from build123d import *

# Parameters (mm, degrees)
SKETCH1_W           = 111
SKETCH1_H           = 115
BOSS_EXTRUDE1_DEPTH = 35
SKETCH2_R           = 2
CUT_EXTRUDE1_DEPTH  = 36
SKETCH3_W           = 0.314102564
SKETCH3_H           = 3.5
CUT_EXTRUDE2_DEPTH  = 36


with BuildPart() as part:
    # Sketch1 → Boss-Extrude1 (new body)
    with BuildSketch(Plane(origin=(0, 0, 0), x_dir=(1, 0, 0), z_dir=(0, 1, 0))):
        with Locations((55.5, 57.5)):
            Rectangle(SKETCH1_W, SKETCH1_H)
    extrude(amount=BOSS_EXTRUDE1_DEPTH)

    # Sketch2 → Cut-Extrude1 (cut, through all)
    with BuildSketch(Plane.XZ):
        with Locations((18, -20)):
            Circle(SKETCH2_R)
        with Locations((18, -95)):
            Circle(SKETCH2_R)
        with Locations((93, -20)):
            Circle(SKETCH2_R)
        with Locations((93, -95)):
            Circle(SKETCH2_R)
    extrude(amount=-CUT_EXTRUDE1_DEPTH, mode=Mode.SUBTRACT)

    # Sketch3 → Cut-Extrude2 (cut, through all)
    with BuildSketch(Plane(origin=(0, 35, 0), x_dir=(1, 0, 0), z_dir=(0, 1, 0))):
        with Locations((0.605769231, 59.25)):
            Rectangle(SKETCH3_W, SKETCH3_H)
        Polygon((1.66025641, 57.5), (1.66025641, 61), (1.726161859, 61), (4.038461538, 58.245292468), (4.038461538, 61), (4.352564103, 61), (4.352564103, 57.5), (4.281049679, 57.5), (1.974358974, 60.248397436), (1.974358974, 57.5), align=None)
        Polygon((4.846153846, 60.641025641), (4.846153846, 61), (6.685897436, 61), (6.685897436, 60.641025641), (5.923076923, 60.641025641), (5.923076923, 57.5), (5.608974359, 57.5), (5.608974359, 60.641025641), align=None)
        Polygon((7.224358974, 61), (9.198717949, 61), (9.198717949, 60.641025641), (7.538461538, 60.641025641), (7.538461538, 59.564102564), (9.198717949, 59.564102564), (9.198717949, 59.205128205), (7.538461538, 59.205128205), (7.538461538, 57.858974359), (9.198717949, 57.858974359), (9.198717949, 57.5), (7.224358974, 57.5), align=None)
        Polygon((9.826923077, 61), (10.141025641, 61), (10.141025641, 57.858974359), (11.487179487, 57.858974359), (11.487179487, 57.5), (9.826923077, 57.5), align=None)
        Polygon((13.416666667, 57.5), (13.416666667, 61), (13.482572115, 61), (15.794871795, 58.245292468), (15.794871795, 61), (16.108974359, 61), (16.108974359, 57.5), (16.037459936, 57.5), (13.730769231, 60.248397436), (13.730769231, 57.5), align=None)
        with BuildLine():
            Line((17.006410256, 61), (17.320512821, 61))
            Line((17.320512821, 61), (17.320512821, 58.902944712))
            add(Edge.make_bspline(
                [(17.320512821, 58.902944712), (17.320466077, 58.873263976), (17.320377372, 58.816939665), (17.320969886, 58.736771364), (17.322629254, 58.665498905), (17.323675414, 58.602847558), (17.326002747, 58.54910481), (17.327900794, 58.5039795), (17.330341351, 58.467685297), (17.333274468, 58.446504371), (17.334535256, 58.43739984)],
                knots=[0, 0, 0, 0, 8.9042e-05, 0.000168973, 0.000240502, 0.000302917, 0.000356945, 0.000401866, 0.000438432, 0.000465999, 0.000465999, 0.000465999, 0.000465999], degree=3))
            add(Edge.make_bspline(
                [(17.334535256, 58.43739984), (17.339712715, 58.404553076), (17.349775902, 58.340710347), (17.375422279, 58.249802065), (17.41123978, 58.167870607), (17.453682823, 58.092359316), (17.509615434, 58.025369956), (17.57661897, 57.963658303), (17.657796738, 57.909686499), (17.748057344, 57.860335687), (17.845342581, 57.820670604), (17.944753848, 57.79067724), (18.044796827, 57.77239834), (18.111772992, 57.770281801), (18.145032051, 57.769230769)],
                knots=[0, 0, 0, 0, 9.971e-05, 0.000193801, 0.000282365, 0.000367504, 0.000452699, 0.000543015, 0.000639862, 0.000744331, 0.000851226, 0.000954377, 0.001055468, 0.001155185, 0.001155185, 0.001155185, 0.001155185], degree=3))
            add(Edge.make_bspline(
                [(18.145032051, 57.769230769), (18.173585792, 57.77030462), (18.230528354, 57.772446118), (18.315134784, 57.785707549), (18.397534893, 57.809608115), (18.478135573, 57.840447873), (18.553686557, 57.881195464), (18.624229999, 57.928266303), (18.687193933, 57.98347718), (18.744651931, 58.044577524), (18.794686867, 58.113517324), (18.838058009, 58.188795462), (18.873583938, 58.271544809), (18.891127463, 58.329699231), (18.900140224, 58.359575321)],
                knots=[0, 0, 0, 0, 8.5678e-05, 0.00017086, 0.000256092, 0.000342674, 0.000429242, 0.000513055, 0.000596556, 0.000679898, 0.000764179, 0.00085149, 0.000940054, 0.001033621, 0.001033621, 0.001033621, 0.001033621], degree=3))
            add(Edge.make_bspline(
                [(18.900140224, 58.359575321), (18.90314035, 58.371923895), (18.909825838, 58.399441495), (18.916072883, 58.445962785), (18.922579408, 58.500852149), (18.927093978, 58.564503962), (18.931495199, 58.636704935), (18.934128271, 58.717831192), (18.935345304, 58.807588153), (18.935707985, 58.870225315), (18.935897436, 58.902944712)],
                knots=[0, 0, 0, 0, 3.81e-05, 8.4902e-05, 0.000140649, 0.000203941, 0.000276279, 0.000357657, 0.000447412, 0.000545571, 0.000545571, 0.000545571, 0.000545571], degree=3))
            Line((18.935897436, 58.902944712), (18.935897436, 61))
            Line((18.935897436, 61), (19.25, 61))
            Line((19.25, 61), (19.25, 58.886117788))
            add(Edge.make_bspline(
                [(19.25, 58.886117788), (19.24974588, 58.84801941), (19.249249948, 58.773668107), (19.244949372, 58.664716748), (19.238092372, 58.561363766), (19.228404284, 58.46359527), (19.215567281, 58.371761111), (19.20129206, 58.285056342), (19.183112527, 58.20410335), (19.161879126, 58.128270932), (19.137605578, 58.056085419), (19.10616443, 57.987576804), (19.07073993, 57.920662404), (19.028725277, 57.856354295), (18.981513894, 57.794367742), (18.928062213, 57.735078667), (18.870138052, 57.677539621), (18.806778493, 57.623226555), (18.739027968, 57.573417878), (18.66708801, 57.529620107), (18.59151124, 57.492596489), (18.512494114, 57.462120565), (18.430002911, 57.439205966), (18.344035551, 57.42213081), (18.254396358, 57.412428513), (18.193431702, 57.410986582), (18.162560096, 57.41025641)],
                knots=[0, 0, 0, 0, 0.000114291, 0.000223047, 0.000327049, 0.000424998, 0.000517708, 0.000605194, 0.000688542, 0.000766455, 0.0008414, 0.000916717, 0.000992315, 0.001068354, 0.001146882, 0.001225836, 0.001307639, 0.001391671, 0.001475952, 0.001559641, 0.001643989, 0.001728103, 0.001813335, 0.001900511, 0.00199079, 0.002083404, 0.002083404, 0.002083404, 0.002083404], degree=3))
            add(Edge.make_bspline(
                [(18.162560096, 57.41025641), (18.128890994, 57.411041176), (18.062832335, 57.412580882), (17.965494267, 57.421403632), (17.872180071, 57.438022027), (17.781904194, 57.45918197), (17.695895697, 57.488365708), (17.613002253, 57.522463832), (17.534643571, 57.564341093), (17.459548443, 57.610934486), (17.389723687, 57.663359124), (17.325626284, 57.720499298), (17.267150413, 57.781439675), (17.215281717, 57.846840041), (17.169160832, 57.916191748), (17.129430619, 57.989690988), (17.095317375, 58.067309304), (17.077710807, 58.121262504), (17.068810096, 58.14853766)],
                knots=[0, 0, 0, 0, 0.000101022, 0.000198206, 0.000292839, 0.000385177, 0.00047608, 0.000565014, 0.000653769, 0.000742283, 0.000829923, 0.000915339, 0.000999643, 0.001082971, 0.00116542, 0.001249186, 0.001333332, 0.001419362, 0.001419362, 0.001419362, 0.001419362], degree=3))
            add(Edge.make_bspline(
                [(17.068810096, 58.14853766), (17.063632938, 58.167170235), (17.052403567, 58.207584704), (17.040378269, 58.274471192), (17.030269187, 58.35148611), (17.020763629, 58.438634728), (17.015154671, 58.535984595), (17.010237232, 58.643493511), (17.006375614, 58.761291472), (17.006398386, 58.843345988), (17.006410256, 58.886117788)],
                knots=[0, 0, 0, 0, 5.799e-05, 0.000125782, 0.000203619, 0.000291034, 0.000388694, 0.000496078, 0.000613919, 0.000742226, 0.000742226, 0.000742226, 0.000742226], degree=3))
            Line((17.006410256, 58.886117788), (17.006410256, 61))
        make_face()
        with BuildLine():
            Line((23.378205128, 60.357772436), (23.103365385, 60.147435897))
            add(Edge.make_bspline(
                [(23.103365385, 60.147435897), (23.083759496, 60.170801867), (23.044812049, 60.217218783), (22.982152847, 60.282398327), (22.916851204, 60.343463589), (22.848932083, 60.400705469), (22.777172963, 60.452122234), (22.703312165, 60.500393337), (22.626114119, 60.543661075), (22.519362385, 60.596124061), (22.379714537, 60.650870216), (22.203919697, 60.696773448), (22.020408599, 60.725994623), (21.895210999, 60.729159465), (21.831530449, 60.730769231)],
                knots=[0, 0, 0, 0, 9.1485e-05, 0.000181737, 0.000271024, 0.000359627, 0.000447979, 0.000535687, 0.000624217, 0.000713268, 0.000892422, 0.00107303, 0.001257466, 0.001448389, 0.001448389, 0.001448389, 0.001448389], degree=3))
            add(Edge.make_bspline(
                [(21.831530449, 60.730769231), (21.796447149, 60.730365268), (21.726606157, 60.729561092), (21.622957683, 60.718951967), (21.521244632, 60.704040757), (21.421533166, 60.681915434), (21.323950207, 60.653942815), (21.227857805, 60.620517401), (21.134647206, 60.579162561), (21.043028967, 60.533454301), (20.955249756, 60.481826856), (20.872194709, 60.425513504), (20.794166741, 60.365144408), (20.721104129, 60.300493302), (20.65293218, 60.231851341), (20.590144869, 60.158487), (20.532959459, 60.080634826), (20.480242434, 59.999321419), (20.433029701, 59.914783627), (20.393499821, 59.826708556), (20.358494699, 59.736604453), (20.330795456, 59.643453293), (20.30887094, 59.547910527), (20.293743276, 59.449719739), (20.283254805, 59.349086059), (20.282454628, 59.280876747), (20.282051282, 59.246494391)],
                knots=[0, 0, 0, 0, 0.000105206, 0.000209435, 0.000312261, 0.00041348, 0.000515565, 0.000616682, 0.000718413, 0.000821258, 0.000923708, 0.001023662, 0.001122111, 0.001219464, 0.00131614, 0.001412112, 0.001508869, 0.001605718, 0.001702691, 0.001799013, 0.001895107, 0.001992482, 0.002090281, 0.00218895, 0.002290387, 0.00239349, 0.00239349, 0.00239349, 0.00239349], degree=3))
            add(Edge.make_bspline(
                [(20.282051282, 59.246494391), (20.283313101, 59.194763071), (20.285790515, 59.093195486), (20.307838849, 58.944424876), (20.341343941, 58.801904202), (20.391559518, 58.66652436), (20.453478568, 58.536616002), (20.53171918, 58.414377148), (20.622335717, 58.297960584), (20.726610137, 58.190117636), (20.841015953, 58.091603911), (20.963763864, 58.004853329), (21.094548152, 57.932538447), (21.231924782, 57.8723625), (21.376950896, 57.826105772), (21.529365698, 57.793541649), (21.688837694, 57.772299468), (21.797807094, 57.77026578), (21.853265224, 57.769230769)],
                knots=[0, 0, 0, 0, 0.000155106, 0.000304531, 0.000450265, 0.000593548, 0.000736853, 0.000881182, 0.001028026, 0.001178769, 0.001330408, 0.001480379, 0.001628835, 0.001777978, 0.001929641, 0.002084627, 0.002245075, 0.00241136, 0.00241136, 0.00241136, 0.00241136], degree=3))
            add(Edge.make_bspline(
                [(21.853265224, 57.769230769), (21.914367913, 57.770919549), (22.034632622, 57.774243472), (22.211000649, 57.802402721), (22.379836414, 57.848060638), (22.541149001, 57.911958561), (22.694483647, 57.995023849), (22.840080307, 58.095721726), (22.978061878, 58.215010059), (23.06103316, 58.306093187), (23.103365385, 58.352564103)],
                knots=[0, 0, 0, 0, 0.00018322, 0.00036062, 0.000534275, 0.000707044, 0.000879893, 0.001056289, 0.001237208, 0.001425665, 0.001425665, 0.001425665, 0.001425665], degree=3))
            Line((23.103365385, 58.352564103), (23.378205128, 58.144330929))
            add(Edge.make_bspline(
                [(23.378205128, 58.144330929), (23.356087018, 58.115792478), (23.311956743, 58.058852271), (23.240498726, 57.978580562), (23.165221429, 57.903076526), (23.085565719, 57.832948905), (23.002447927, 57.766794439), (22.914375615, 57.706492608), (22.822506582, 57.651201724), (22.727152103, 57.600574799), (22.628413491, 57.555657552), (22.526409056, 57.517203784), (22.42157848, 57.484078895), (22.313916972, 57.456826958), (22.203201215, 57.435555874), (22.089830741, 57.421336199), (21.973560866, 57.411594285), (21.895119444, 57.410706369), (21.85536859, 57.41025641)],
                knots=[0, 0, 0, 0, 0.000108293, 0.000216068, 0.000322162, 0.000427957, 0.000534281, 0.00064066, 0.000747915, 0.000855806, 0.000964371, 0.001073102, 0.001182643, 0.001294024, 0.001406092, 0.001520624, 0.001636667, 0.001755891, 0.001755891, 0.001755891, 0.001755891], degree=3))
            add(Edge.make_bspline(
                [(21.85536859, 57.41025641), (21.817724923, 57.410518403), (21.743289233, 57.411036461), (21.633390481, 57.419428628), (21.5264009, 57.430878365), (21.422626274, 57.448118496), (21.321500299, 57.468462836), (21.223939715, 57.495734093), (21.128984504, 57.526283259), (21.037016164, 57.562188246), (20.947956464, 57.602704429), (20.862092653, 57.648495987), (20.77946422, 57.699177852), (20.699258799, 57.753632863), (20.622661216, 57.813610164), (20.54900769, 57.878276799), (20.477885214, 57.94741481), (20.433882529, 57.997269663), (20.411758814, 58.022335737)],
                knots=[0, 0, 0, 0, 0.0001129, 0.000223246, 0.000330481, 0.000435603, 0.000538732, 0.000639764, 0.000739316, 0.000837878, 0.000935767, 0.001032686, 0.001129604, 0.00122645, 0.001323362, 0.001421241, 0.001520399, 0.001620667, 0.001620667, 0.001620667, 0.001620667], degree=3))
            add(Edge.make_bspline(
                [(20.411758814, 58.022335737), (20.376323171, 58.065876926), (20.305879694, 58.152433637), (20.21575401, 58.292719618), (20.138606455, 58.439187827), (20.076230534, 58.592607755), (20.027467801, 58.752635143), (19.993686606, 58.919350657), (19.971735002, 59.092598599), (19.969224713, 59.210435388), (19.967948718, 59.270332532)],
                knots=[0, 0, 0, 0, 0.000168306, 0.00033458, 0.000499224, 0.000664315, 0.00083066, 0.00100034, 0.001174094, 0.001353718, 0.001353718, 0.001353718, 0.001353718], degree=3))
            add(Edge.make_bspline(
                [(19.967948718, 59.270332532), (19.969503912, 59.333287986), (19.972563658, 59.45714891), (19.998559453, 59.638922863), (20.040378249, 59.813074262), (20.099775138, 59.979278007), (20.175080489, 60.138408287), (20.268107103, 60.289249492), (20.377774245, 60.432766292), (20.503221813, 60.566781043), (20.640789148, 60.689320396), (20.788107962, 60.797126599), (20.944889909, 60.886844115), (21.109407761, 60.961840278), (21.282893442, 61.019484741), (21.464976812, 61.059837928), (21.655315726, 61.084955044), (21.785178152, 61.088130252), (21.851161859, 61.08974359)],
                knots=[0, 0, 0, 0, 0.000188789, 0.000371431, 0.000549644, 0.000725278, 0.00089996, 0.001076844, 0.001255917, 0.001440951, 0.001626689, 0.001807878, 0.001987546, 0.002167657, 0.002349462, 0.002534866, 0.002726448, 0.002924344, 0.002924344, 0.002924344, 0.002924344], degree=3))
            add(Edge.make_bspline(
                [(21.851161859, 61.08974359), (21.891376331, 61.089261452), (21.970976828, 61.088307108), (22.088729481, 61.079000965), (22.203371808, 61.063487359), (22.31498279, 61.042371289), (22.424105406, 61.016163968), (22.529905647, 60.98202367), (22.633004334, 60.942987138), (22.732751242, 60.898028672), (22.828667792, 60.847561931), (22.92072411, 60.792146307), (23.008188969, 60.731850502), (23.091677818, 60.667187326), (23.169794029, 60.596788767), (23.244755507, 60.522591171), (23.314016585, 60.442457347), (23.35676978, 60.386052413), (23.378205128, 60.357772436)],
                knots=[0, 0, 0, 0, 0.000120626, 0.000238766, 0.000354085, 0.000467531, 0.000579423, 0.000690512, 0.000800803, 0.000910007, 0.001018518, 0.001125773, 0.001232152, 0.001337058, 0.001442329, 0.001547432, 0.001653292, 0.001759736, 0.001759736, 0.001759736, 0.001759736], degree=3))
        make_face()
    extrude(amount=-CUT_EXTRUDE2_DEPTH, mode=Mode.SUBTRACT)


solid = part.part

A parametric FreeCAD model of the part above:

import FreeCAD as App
import Part
import Sketcher
from FreeCAD import Vector


def add_polygon(sketch, points):
    """Adds a closed chain of lines whose ends are joined by coincident constraints."""
    first, n = sketch.GeometryCount, len(points)
    for a, b in zip(points, points[1:] + points[:1]):
        sketch.addGeometry(Part.LineSegment(App.Vector(*a, 0), App.Vector(*b, 0)), False)
    for i in range(n):
        sketch.addConstraint(Sketcher.Constraint("Coincident", first + i, 2, first + (i + 1) % n, 1))

doc = App.newDocument("Part")
body = doc.addObject("PartDesign::Body", "Body")

# Sketch on XZ plane
sketch1 = body.newObject("Sketcher::SketchObject", "Sketch")
sketch1.AttachmentSupport = (doc.getObject("XZ_Plane"), [""])
sketch1.MapMode = "FlatFace"
add_polygon(sketch1, [(0, -115), (0, 0), (111, 0), (111, -115)])  # lines 0-3
sketch1.addConstraint(Sketcher.Constraint("Vertical", 0))
sketch1.addConstraint(Sketcher.Constraint("Horizontal", 1))
sketch1.addConstraint(Sketcher.Constraint("Vertical", 2))
sketch1.addConstraint(Sketcher.Constraint("Horizontal", 3))
sketch1.addConstraint(Sketcher.Constraint("Coincident", 0, 2, -1, 1))
sketch1.addConstraint(Sketcher.Constraint("DistanceX", 1, 1, 1, 2, 111.0))
sketch1.addConstraint(Sketcher.Constraint("DistanceY", 0, 1, 0, 2, 115.0))
pad1 = body.newObject("PartDesign::Pad", "Pad")
pad1.Profile = sketch1
pad1.Length = 35
pad1.Reversed = True

# Sketch on XZ plane
sketch2 = body.newObject("Sketcher::SketchObject", "Sketch001")
sketch2.AttachmentSupport = (doc.getObject("XZ_Plane"), [""])
sketch2.MapMode = "FlatFace"
sketch2.addGeometry(Part.Circle(Vector(18, -20, 0), Vector(0, 0, 1), 2), False)
sketch2.addGeometry(Part.Circle(Vector(18, -95, 0), Vector(0, 0, 1), 2), False)
sketch2.addGeometry(Part.Circle(Vector(93, -20, 0), Vector(0, 0, 1), 2), False)
sketch2.addGeometry(Part.Circle(Vector(93, -95, 0), Vector(0, 0, 1), 2), False)
sketch2.addConstraint(Sketcher.Constraint("Equal", 0, 1))
sketch2.addConstraint(Sketcher.Constraint("Equal", 1, 2))
sketch2.addConstraint(Sketcher.Constraint("Equal", 2, 3))
sketch2.addConstraint(Sketcher.Constraint("Horizontal", 0, 3, 2, 3))
sketch2.addConstraint(Sketcher.Constraint("Horizontal", 1, 3, 3, 3))
sketch2.addConstraint(Sketcher.Constraint("Vertical", 0, 3, 1, 3))
sketch2.addConstraint(Sketcher.Constraint("Vertical", 2, 3, 3, 3))
sketch2.addConstraint(Sketcher.Constraint("Diameter", 0, 4.0))
sketch2.addConstraint(Sketcher.Constraint("DistanceX", -1, 1, 0, 3, 18.0))
sketch2.addConstraint(Sketcher.Constraint("DistanceY", 0, 3, -1, 1, 20.0))
sketch2.addConstraint(Sketcher.Constraint("DistanceY", 1, 3, -1, 1, 95.0))
sketch2.addConstraint(Sketcher.Constraint("DistanceX", -1, 1, 2, 3, 93.0))
pocket1 = body.newObject("PartDesign::Pocket", "Pocket")
pocket1.Profile = sketch2
pocket1.Type = "ThroughAll"

# Sketch on XZ plane
sketch3 = body.newObject("Sketcher::SketchObject", "Sketch002")
sketch3.AttachmentSupport = (doc.getObject("XZ_Plane"), [""])
sketch3.MapMode = "FlatFace"
sketch3.AttachmentOffset = App.Placement(Vector(0, 0, -35), App.Rotation())
add_polygon(sketch3, [(0.448718, -61), (0.448718, -57.5), (0.762821, -57.5), (0.762821, -61)])  # lines 0-3
add_polygon(sketch3, [(1.660256, -61), (1.660256, -57.5), (1.974359, -57.5), (1.974359, -60.248397), (4.28105, -57.5), (4.352564, -57.5), (4.352564, -61), (4.038462, -61), (4.038462, -58.245292), (1.726162, -61)])  # lines 4-13
add_polygon(sketch3, [(4.846154, -61), (4.846154, -60.641026), (5.608974, -60.641026), (5.608974, -57.5), (5.923077, -57.5), (5.923077, -60.641026), (6.685897, -60.641026), (6.685897, -61)])  # lines 14-21
add_polygon(sketch3, [(9.198718, -61), (7.224359, -61), (7.224359, -57.5), (9.198718, -57.5), (9.198718, -57.858974), (7.538462, -57.858974), (7.538462, -59.205128), (9.198718, -59.205128), (9.198718, -59.564103), (7.538462, -59.564103), (7.538462, -60.641026), (9.198718, -60.641026)])  # lines 22-33
add_polygon(sketch3, [(10.141026, -61), (9.826923, -61), (9.826923, -57.5), (11.487179, -57.5), (11.487179, -57.858974), (10.141026, -57.858974)])  # lines 34-39
add_polygon(sketch3, [(13.416667, -61), (13.416667, -57.5), (13.730769, -57.5), (13.730769, -60.248397), (16.03746, -57.5), (16.108974, -57.5), (16.108974, -61), (15.794872, -61), (15.794872, -58.245292), (13.482572, -61)])  # lines 40-49
sketch3.addGeometry(Part.LineSegment(Vector(17.320513, -61, 0), Vector(17.00641, -61, 0)), False)  # 50
sketch3.addGeometry(Part.LineSegment(Vector(17.00641, -61, 0), Vector(17.00641, -58.886118, 0)), False)  # 51
sketch3.addGeometry(Part.BSplineCurve([Vector(17.06881, -58.148538, 0), Vector(17.063633, -58.16717, 0), Vector(17.052404, -58.207585, 0), Vector(17.040378, -58.274471, 0), Vector(17.030269, -58.351486, 0), Vector(17.020764, -58.438635, 0), Vector(17.015155, -58.535985, 0), Vector(17.010237, -58.643494, 0), Vector(17.006376, -58.761291, 0), Vector(17.006398, -58.843346, 0), Vector(17.00641, -58.886118, 0)], [4, 1, 1, 1, 1, 1, 1, 1, 4], [0, 0.00005799, 0.000125782, 0.000203619, 0.000291034, 0.000388694, 0.000496078, 0.000613919, 0.000742226], False, 3, [1, 1, 1, 1, 1, 1, 1, 1, 1, 1, 1], False), False)  # 52
sketch3.addGeometry(Part.BSplineCurve([Vector(18.16256, -57.410256, 0), Vector(18.128891, -57.411041, 0), Vector(18.062832, -57.412581, 0), Vector(17.965494, -57.421404, 0), Vector(17.87218, -57.438022, 0), Vector(17.781904, -57.459182, 0), Vector(17.695896, -57.488366, 0), Vector(17.613002, -57.522464, 0), Vector(17.534644, -57.564341, 0), Vector(17.459548, -57.610934, 0), Vector(17.389724, -57.663359, 0), Vector(17.325626, -57.720499, 0), Vector(17.26715, -57.78144, 0), Vector(17.215282, -57.84684, 0), Vector(17.169161, -57.916192, 0), Vector(17.129431, -57.989691, 0), Vector(17.095317, -58.067309, 0), Vector(17.077711, -58.121263, 0), Vector(17.06881, -58.148538, 0)], [4, 1, 1, 1, 1, 1, 1, 1, 1, 1, 1, 1, 1, 1, 1, 1, 4], [0, 0.000101022, 0.000198206, 0.000292839, 0.000385177, 0.00047608, 0.000565014, 0.000653769, 0.000742283, 0.000829923, 0.000915339, 0.000999643, 0.001082971, 0.00116542, 0.001249186, 0.001333332, 0.001419362], False, 3, [1, 1, 1, 1, 1, 1, 1, 1, 1, 1, 1, 1, 1, 1, 1, 1, 1, 1, 1], False), False)  # 53
sketch3.addGeometry(Part.BSplineCurve([Vector(19.25, -58.886118, 0), Vector(19.249746, -58.848019, 0), Vector(19.24925, -58.773668, 0), Vector(19.244949, -58.664717, 0), Vector(19.238092, -58.561364, 0), Vector(19.228404, -58.463595, 0), Vector(19.215567, -58.371761, 0), Vector(19.201292, -58.285056, 0), Vector(19.183113, -58.204103, 0), Vector(19.161879, -58.128271, 0), Vector(19.137606, -58.056085, 0), Vector(19.106164, -57.987577, 0), Vector(19.07074, -57.920662, 0), Vector(19.028725, -57.856354, 0), Vector(18.981514, -57.794368, 0), Vector(18.928062, -57.735079, 0), Vector(18.870138, -57.67754, 0), Vector(18.806778, -57.623227, 0), Vector(18.739028, -57.573418, 0), Vector(18.667088, -57.52962, 0), Vector(18.591511, -57.492596, 0), Vector(18.512494, -57.462121, 0), Vector(18.430003, -57.439206, 0), Vector(18.344036, -57.422131, 0), Vector(18.254396, -57.412429, 0), Vector(18.193432, -57.410987, 0), Vector(18.16256, -57.410256, 0)], [4, 1, 1, 1, 1, 1, 1, 1, 1, 1, 1, 1, 1, 1, 1, 1, 1, 1, 1, 1, 1, 1, 1, 1, 4], [0, 0.000114291, 0.000223047, 0.000327049, 0.000424998, 0.000517708, 0.000605194, 0.000688542, 0.000766455, 0.0008414, 0.000916717, 0.000992315, 0.001068354, 0.001146882, 0.001225836, 0.001307639, 0.001391671, 0.001475952, 0.001559641, 0.001643989, 0.001728103, 0.001813335, 0.001900511, 0.00199079, 0.002083404], False, 3, [1, 1, 1, 1, 1, 1, 1, 1, 1, 1, 1, 1, 1, 1, 1, 1, 1, 1, 1, 1, 1, 1, 1, 1, 1, 1, 1], False), False)  # 54
sketch3.addGeometry(Part.LineSegment(Vector(19.25, -58.886118, 0), Vector(19.25, -61, 0)), False)  # 55
sketch3.addGeometry(Part.LineSegment(Vector(19.25, -61, 0), Vector(18.935897, -61, 0)), False)  # 56
sketch3.addGeometry(Part.LineSegment(Vector(18.935897, -61, 0), Vector(18.935897, -58.902945, 0)), False)  # 57
sketch3.addGeometry(Part.BSplineCurve([Vector(18.90014, -58.359575, 0), Vector(18.90314, -58.371924, 0), Vector(18.909826, -58.399441, 0), Vector(18.916073, -58.445963, 0), Vector(18.922579, -58.500852, 0), Vector(18.927094, -58.564504, 0), Vector(18.931495, -58.636705, 0), Vector(18.934128, -58.717831, 0), Vector(18.935345, -58.807588, 0), Vector(18.935708, -58.870225, 0), Vector(18.935897, -58.902945, 0)], [4, 1, 1, 1, 1, 1, 1, 1, 4], [0, 0.0000381, 0.000084902, 0.000140649, 0.000203941, 0.000276279, 0.000357657, 0.000447412, 0.000545571], False, 3, [1, 1, 1, 1, 1, 1, 1, 1, 1, 1, 1], False), False)  # 58
sketch3.addGeometry(Part.BSplineCurve([Vector(18.145032, -57.769231, 0), Vector(18.173586, -57.770305, 0), Vector(18.230528, -57.772446, 0), Vector(18.315135, -57.785708, 0), Vector(18.397535, -57.809608, 0), Vector(18.478136, -57.840448, 0), Vector(18.553687, -57.881195, 0), Vector(18.62423, -57.928266, 0), Vector(18.687194, -57.983477, 0), Vector(18.744652, -58.044578, 0), Vector(18.794687, -58.113517, 0), Vector(18.838058, -58.188795, 0), Vector(18.873584, -58.271545, 0), Vector(18.891127, -58.329699, 0), Vector(18.90014, -58.359575, 0)], [4, 1, 1, 1, 1, 1, 1, 1, 1, 1, 1, 1, 4], [0, 0.000085678, 0.00017086, 0.000256092, 0.000342674, 0.000429242, 0.000513055, 0.000596556, 0.000679898, 0.000764179, 0.00085149, 0.000940054, 0.001033621], False, 3, [1, 1, 1, 1, 1, 1, 1, 1, 1, 1, 1, 1, 1, 1, 1], False), False)  # 59
sketch3.addGeometry(Part.BSplineCurve([Vector(17.334535, -58.4374, 0), Vector(17.339713, -58.404553, 0), Vector(17.349776, -58.34071, 0), Vector(17.375422, -58.249802, 0), Vector(17.41124, -58.167871, 0), Vector(17.453683, -58.092359, 0), Vector(17.509615, -58.02537, 0), Vector(17.576619, -57.963658, 0), Vector(17.657797, -57.909686, 0), Vector(17.748057, -57.860336, 0), Vector(17.845343, -57.820671, 0), Vector(17.944754, -57.790677, 0), Vector(18.044797, -57.772398, 0), Vector(18.111773, -57.770282, 0), Vector(18.145032, -57.769231, 0)], [4, 1, 1, 1, 1, 1, 1, 1, 1, 1, 1, 1, 4], [0, 0.00009971, 0.000193801, 0.000282365, 0.000367504, 0.000452699, 0.000543015, 0.000639862, 0.000744331, 0.000851226, 0.000954377, 0.001055468, 0.001155185], False, 3, [1, 1, 1, 1, 1, 1, 1, 1, 1, 1, 1, 1, 1, 1, 1], False), False)  # 60
sketch3.addGeometry(Part.BSplineCurve([Vector(17.320513, -58.902945, 0), Vector(17.320466, -58.873264, 0), Vector(17.320377, -58.81694, 0), Vector(17.32097, -58.736771, 0), Vector(17.322629, -58.665499, 0), Vector(17.323675, -58.602848, 0), Vector(17.326003, -58.549105, 0), Vector(17.327901, -58.503979, 0), Vector(17.330341, -58.467685, 0), Vector(17.333274, -58.446504, 0), Vector(17.334535, -58.4374, 0)], [4, 1, 1, 1, 1, 1, 1, 1, 4], [0, 0.000089042, 0.000168973, 0.000240502, 0.000302917, 0.000356945, 0.000401866, 0.000438432, 0.000465999], False, 3, [1, 1, 1, 1, 1, 1, 1, 1, 1, 1, 1], False), False)  # 61
sketch3.addGeometry(Part.LineSegment(Vector(17.320513, -58.902945, 0), Vector(17.320513, -61, 0)), False)  # 62
sketch3.addGeometry(Part.LineSegment(Vector(23.103365, -60.147436, 0), Vector(23.378205, -60.357772, 0)), False)  # 63
sketch3.addGeometry(Part.BSplineCurve([Vector(21.851162, -61.089744, 0), Vector(21.891376, -61.089261, 0), Vector(21.970977, -61.088307, 0), Vector(22.088729, -61.079001, 0), Vector(22.203372, -61.063487, 0), Vector(22.314983, -61.042371, 0), Vector(22.424105, -61.016164, 0), Vector(22.529906, -60.982024, 0), Vector(22.633004, -60.942987, 0), Vector(22.732751, -60.898029, 0), Vector(22.828668, -60.847562, 0), Vector(22.920724, -60.792146, 0), Vector(23.008189, -60.731851, 0), Vector(23.091678, -60.667187, 0), Vector(23.169794, -60.596789, 0), Vector(23.244756, -60.522591, 0), Vector(23.314017, -60.442457, 0), Vector(23.35677, -60.386052, 0), Vector(23.378205, -60.357772, 0)], [4, 1, 1, 1, 1, 1, 1, 1, 1, 1, 1, 1, 1, 1, 1, 1, 4], [0, 0.000120626, 0.000238766, 0.000354085, 0.000467531, 0.000579423, 0.000690512, 0.000800803, 0.000910007, 0.001018518, 0.001125773, 0.001232152, 0.001337058, 0.001442329, 0.001547432, 0.001653292, 0.001759736], False, 3, [1, 1, 1, 1, 1, 1, 1, 1, 1, 1, 1, 1, 1, 1, 1, 1, 1, 1, 1], False), False)  # 64
sketch3.addGeometry(Part.BSplineCurve([Vector(19.967949, -59.270333, 0), Vector(19.969504, -59.333288, 0), Vector(19.972564, -59.457149, 0), Vector(19.998559, -59.638923, 0), Vector(20.040378, -59.813074, 0), Vector(20.099775, -59.979278, 0), Vector(20.17508, -60.138408, 0), Vector(20.268107, -60.289249, 0), Vector(20.377774, -60.432766, 0), Vector(20.503222, -60.566781, 0), Vector(20.640789, -60.68932, 0), Vector(20.788108, -60.797127, 0), Vector(20.94489, -60.886844, 0), Vector(21.109408, -60.96184, 0), Vector(21.282893, -61.019485, 0), Vector(21.464977, -61.059838, 0), Vector(21.655316, -61.084955, 0), Vector(21.785178, -61.08813, 0), Vector(21.851162, -61.089744, 0)], [4, 1, 1, 1, 1, 1, 1, 1, 1, 1, 1, 1, 1, 1, 1, 1, 4], [0, 0.000188789, 0.000371431, 0.000549644, 0.000725278, 0.00089996, 0.001076844, 0.001255917, 0.001440951, 0.001626689, 0.001807878, 0.001987546, 0.002167657, 0.002349462, 0.002534866, 0.002726448, 0.002924344], False, 3, [1, 1, 1, 1, 1, 1, 1, 1, 1, 1, 1, 1, 1, 1, 1, 1, 1, 1, 1], False), False)  # 65
sketch3.addGeometry(Part.BSplineCurve([Vector(20.411759, -58.022336, 0), Vector(20.376323, -58.065877, 0), Vector(20.30588, -58.152434, 0), Vector(20.215754, -58.29272, 0), Vector(20.138606, -58.439188, 0), Vector(20.076231, -58.592608, 0), Vector(20.027468, -58.752635, 0), Vector(19.993687, -58.919351, 0), Vector(19.971735, -59.092599, 0), Vector(19.969225, -59.210435, 0), Vector(19.967949, -59.270333, 0)], [4, 1, 1, 1, 1, 1, 1, 1, 4], [0, 0.000168306, 0.00033458, 0.000499224, 0.000664315, 0.00083066, 0.00100034, 0.001174094, 0.001353718], False, 3, [1, 1, 1, 1, 1, 1, 1, 1, 1, 1, 1], False), False)  # 66
sketch3.addGeometry(Part.BSplineCurve([Vector(21.855369, -57.410256, 0), Vector(21.817725, -57.410518, 0), Vector(21.743289, -57.411036, 0), Vector(21.63339, -57.419429, 0), Vector(21.526401, -57.430878, 0), Vector(21.422626, -57.448118, 0), Vector(21.3215, -57.468463, 0), Vector(21.22394, -57.495734, 0), Vector(21.128985, -57.526283, 0), Vector(21.037016, -57.562188, 0), Vector(20.947956, -57.602704, 0), Vector(20.862093, -57.648496, 0), Vector(20.779464, -57.699178, 0), Vector(20.699259, -57.753633, 0), Vector(20.622661, -57.81361, 0), Vector(20.549008, -57.878277, 0), Vector(20.477885, -57.947415, 0), Vector(20.433883, -57.99727, 0), Vector(20.411759, -58.022336, 0)], [4, 1, 1, 1, 1, 1, 1, 1, 1, 1, 1, 1, 1, 1, 1, 1, 4], [0, 0.0001129, 0.000223246, 0.000330481, 0.000435603, 0.000538732, 0.000639764, 0.000739316, 0.000837878, 0.000935767, 0.001032686, 0.001129604, 0.00122645, 0.001323362, 0.001421241, 0.001520399, 0.001620667], False, 3, [1, 1, 1, 1, 1, 1, 1, 1, 1, 1, 1, 1, 1, 1, 1, 1, 1, 1, 1], False), False)  # 67
sketch3.addGeometry(Part.BSplineCurve([Vector(23.378205, -58.144331, 0), Vector(23.356087, -58.115792, 0), Vector(23.311957, -58.058852, 0), Vector(23.240499, -57.978581, 0), Vector(23.165221, -57.903077, 0), Vector(23.085566, -57.832949, 0), Vector(23.002448, -57.766794, 0), Vector(22.914376, -57.706493, 0), Vector(22.822507, -57.651202, 0), Vector(22.727152, -57.600575, 0), Vector(22.628413, -57.555658, 0), Vector(22.526409, -57.517204, 0), Vector(22.421578, -57.484079, 0), Vector(22.313917, -57.456827, 0), Vector(22.203201, -57.435556, 0), Vector(22.089831, -57.421336, 0), Vector(21.973561, -57.411594, 0), Vector(21.895119, -57.410706, 0), Vector(21.855369, -57.410256, 0)], [4, 1, 1, 1, 1, 1, 1, 1, 1, 1, 1, 1, 1, 1, 1, 1, 4], [0, 0.000108293, 0.000216068, 0.000322162, 0.000427957, 0.000534281, 0.00064066, 0.000747915, 0.000855806, 0.000964371, 0.001073102, 0.001182643, 0.001294024, 0.001406092, 0.001520624, 0.001636667, 0.001755891], False, 3, [1, 1, 1, 1, 1, 1, 1, 1, 1, 1, 1, 1, 1, 1, 1, 1, 1, 1, 1], False), False)  # 68
sketch3.addGeometry(Part.LineSegment(Vector(23.378205, -58.144331, 0), Vector(23.103365, -58.352564, 0)), False)  # 69
sketch3.addGeometry(Part.BSplineCurve([Vector(21.853265, -57.769231, 0), Vector(21.914368, -57.77092, 0), Vector(22.034633, -57.774243, 0), Vector(22.211001, -57.802403, 0), Vector(22.379836, -57.848061, 0), Vector(22.541149, -57.911959, 0), Vector(22.694484, -57.995024, 0), Vector(22.84008, -58.095722, 0), Vector(22.978062, -58.21501, 0), Vector(23.061033, -58.306093, 0), Vector(23.103365, -58.352564, 0)], [4, 1, 1, 1, 1, 1, 1, 1, 4], [0, 0.00018322, 0.00036062, 0.000534275, 0.000707044, 0.000879893, 0.001056289, 0.001237208, 0.001425665], False, 3, [1, 1, 1, 1, 1, 1, 1, 1, 1, 1, 1], False), False)  # 70
sketch3.addGeometry(Part.BSplineCurve([Vector(20.282051, -59.246494, 0), Vector(20.283313, -59.194763, 0), Vector(20.285791, -59.093195, 0), Vector(20.307839, -58.944425, 0), Vector(20.341344, -58.801904, 0), Vector(20.39156, -58.666524, 0), Vector(20.453479, -58.536616, 0), Vector(20.531719, -58.414377, 0), Vector(20.622336, -58.297961, 0), Vector(20.72661, -58.190118, 0), Vector(20.841016, -58.091604, 0), Vector(20.963764, -58.004853, 0), Vector(21.094548, -57.932538, 0), Vector(21.231925, -57.872363, 0), Vector(21.376951, -57.826106, 0), Vector(21.529366, -57.793542, 0), Vector(21.688838, -57.772299, 0), Vector(21.797807, -57.770266, 0), Vector(21.853265, -57.769231, 0)], [4, 1, 1, 1, 1, 1, 1, 1, 1, 1, 1, 1, 1, 1, 1, 1, 4], [0, 0.000155106, 0.000304531, 0.000450265, 0.000593548, 0.000736853, 0.000881182, 0.001028026, 0.001178769, 0.001330408, 0.001480379, 0.001628835, 0.001777978, 0.001929641, 0.002084627, 0.002245075, 0.00241136], False, 3, [1, 1, 1, 1, 1, 1, 1, 1, 1, 1, 1, 1, 1, 1, 1, 1, 1, 1, 1], False), False)  # 71
sketch3.addGeometry(Part.BSplineCurve([Vector(21.83153, -60.730769, 0), Vector(21.796447, -60.730365, 0), Vector(21.726606, -60.729561, 0), Vector(21.622958, -60.718952, 0), Vector(21.521245, -60.704041, 0), Vector(21.421533, -60.681915, 0), Vector(21.32395, -60.653943, 0), Vector(21.227858, -60.620517, 0), Vector(21.134647, -60.579163, 0), Vector(21.043029, -60.533454, 0), Vector(20.95525, -60.481827, 0), Vector(20.872195, -60.425514, 0), Vector(20.794167, -60.365144, 0), Vector(20.721104, -60.300493, 0), Vector(20.652932, -60.231851, 0), Vector(20.590145, -60.158487, 0), Vector(20.532959, -60.080635, 0), Vector(20.480242, -59.999321, 0), Vector(20.43303, -59.914784, 0), Vector(20.3935, -59.826709, 0), Vector(20.358495, -59.736604, 0), Vector(20.330795, -59.643453, 0), Vector(20.308871, -59.547911, 0), Vector(20.293743, -59.44972, 0), Vector(20.283255, -59.349086, 0), Vector(20.282455, -59.280877, 0), Vector(20.282051, -59.246494, 0)], [4, 1, 1, 1, 1, 1, 1, 1, 1, 1, 1, 1, 1, 1, 1, 1, 1, 1, 1, 1, 1, 1, 1, 1, 4], [0, 0.000105206, 0.000209435, 0.000312261, 0.00041348, 0.000515565, 0.000616682, 0.000718413, 0.000821258, 0.000923708, 0.001023662, 0.001122111, 0.001219464, 0.00131614, 0.001412112, 0.001508869, 0.001605718, 0.001702691, 0.001799013, 0.001895107, 0.001992482, 0.002090281, 0.00218895, 0.002290387, 0.00239349], False, 3, [1, 1, 1, 1, 1, 1, 1, 1, 1, 1, 1, 1, 1, 1, 1, 1, 1, 1, 1, 1, 1, 1, 1, 1, 1, 1, 1], False), False)  # 72
sketch3.addGeometry(Part.BSplineCurve([Vector(23.103365, -60.147436, 0), Vector(23.083759, -60.170802, 0), Vector(23.044812, -60.217219, 0), Vector(22.982153, -60.282398, 0), Vector(22.916851, -60.343464, 0), Vector(22.848932, -60.400705, 0), Vector(22.777173, -60.452122, 0), Vector(22.703312, -60.500393, 0), Vector(22.626114, -60.543661, 0), Vector(22.519362, -60.596124, 0), Vector(22.379715, -60.65087, 0), Vector(22.20392, -60.696773, 0), Vector(22.020409, -60.725995, 0), Vector(21.895211, -60.729159, 0), Vector(21.83153, -60.730769, 0)], [4, 1, 1, 1, 1, 1, 1, 1, 1, 1, 1, 1, 4], [0, 0.000091485, 0.000181737, 0.000271024, 0.000359627, 0.000447979, 0.000535687, 0.000624217, 0.000713268, 0.000892422, 0.00107303, 0.001257466, 0.001448389], False, 3, [1, 1, 1, 1, 1, 1, 1, 1, 1, 1, 1, 1, 1, 1, 1], False), False)  # 73
sketch3.addConstraint(Sketcher.Constraint("Block", 52))
sketch3.addConstraint(Sketcher.Constraint("Block", 53))
sketch3.addConstraint(Sketcher.Constraint("Block", 54))
sketch3.addConstraint(Sketcher.Constraint("Block", 58))
sketch3.addConstraint(Sketcher.Constraint("Block", 59))
sketch3.addConstraint(Sketcher.Constraint("Block", 60))
sketch3.addConstraint(Sketcher.Constraint("Block", 61))
sketch3.addConstraint(Sketcher.Constraint("Block", 64))
sketch3.addConstraint(Sketcher.Constraint("Block", 65))
sketch3.addConstraint(Sketcher.Constraint("Block", 66))
sketch3.addConstraint(Sketcher.Constraint("Block", 67))
sketch3.addConstraint(Sketcher.Constraint("Block", 68))
sketch3.addConstraint(Sketcher.Constraint("Block", 70))
sketch3.addConstraint(Sketcher.Constraint("Block", 71))
sketch3.addConstraint(Sketcher.Constraint("Block", 72))
sketch3.addConstraint(Sketcher.Constraint("Block", 73))
sketch3.addConstraint(Sketcher.Constraint("Coincident", 50, 2, 51, 1))
sketch3.addConstraint(Sketcher.Constraint("Coincident", 51, 2, 52, 2))
sketch3.addConstraint(Sketcher.Constraint("Coincident", 54, 1, 55, 1))
sketch3.addConstraint(Sketcher.Constraint("Coincident", 55, 2, 56, 1))
sketch3.addConstraint(Sketcher.Constraint("Coincident", 56, 2, 57, 1))
sketch3.addConstraint(Sketcher.Constraint("Coincident", 57, 2, 58, 2))
sketch3.addConstraint(Sketcher.Constraint("Coincident", 61, 1, 62, 1))
sketch3.addConstraint(Sketcher.Constraint("Coincident", 62, 2, 50, 1))
sketch3.addConstraint(Sketcher.Constraint("Coincident", 63, 2, 64, 2))
sketch3.addConstraint(Sketcher.Constraint("Coincident", 68, 1, 69, 1))
sketch3.addConstraint(Sketcher.Constraint("Coincident", 69, 2, 70, 2))
sketch3.addConstraint(Sketcher.Constraint("Coincident", 73, 1, 63, 1))
sketch3.addConstraint(Sketcher.Constraint("Vertical", 0))
sketch3.addConstraint(Sketcher.Constraint("Horizontal", 1))
sketch3.addConstraint(Sketcher.Constraint("Vertical", 2))
sketch3.addConstraint(Sketcher.Constraint("Horizontal", 3))
sketch3.addConstraint(Sketcher.Constraint("Vertical", 4))
sketch3.addConstraint(Sketcher.Constraint("Horizontal", 5))
sketch3.addConstraint(Sketcher.Constraint("Vertical", 6))
sketch3.addConstraint(Sketcher.Constraint("Horizontal", 8))
sketch3.addConstraint(Sketcher.Constraint("Vertical", 9))
sketch3.addConstraint(Sketcher.Constraint("Horizontal", 10))
sketch3.addConstraint(Sketcher.Constraint("Vertical", 11))
sketch3.addConstraint(Sketcher.Constraint("Horizontal", 13))
sketch3.addConstraint(Sketcher.Constraint("Vertical", 14))
sketch3.addConstraint(Sketcher.Constraint("Horizontal", 15))
sketch3.addConstraint(Sketcher.Constraint("Vertical", 16))
sketch3.addConstraint(Sketcher.Constraint("Horizontal", 17))
sketch3.addConstraint(Sketcher.Constraint("Vertical", 18))
sketch3.addConstraint(Sketcher.Constraint("Horizontal", 19))
sketch3.addConstraint(Sketcher.Constraint("Vertical", 20))
sketch3.addConstraint(Sketcher.Constraint("Horizontal", 21))
sketch3.addConstraint(Sketcher.Constraint("Horizontal", 22))
sketch3.addConstraint(Sketcher.Constraint("Vertical", 23))
sketch3.addConstraint(Sketcher.Constraint("Horizontal", 24))
sketch3.addConstraint(Sketcher.Constraint("Vertical", 25))
sketch3.addConstraint(Sketcher.Constraint("Horizontal", 26))
sketch3.addConstraint(Sketcher.Constraint("Vertical", 27))
sketch3.addConstraint(Sketcher.Constraint("Horizontal", 28))
sketch3.addConstraint(Sketcher.Constraint("Vertical", 29))
sketch3.addConstraint(Sketcher.Constraint("Horizontal", 30))
sketch3.addConstraint(Sketcher.Constraint("Vertical", 31))
sketch3.addConstraint(Sketcher.Constraint("Horizontal", 32))
sketch3.addConstraint(Sketcher.Constraint("Vertical", 33))
sketch3.addConstraint(Sketcher.Constraint("Horizontal", 34))
sketch3.addConstraint(Sketcher.Constraint("Vertical", 35))
sketch3.addConstraint(Sketcher.Constraint("Horizontal", 36))
sketch3.addConstraint(Sketcher.Constraint("Vertical", 37))
sketch3.addConstraint(Sketcher.Constraint("Horizontal", 38))
sketch3.addConstraint(Sketcher.Constraint("Vertical", 39))
sketch3.addConstraint(Sketcher.Constraint("Vertical", 40))
sketch3.addConstraint(Sketcher.Constraint("Horizontal", 41))
sketch3.addConstraint(Sketcher.Constraint("Vertical", 42))
sketch3.addConstraint(Sketcher.Constraint("Horizontal", 44))
sketch3.addConstraint(Sketcher.Constraint("Vertical", 45))
sketch3.addConstraint(Sketcher.Constraint("Horizontal", 46))
sketch3.addConstraint(Sketcher.Constraint("Vertical", 47))
sketch3.addConstraint(Sketcher.Constraint("Horizontal", 49))
sketch3.addConstraint(Sketcher.Constraint("Horizontal", 50))
sketch3.addConstraint(Sketcher.Constraint("Vertical", 51))
sketch3.addConstraint(Sketcher.Constraint("Vertical", 55))
sketch3.addConstraint(Sketcher.Constraint("Horizontal", 56))
sketch3.addConstraint(Sketcher.Constraint("Vertical", 57))
sketch3.addConstraint(Sketcher.Constraint("Vertical", 62))
sketch3.addConstraint(Sketcher.Constraint("DistanceY", 0, 1, 0, 2, 3.5))
sketch3.addConstraint(Sketcher.Constraint("DistanceY", 4, 1, 4, 2, 3.5))
sketch3.addConstraint(Sketcher.Constraint("DistanceY", 9, 2, 9, 1, 3.5))
sketch3.addConstraint(Sketcher.Constraint("DistanceY", 23, 1, 23, 2, 3.5))
sketch3.addConstraint(Sketcher.Constraint("DistanceY", 35, 1, 35, 2, 3.5))
sketch3.addConstraint(Sketcher.Constraint("DistanceY", 40, 1, 40, 2, 3.5))
sketch3.addConstraint(Sketcher.Constraint("DistanceY", 45, 2, 45, 1, 3.5))
sketch3.addConstraint(Sketcher.Constraint("DistanceY", 2, 2, -1, 1, 61.0))
sketch3.addConstraint(Sketcher.Constraint("DistanceY", 9, 2, -1, 1, 61.0))
sketch3.addConstraint(Sketcher.Constraint("DistanceY", 12, 2, -1, 1, 61.0))
sketch3.addConstraint(Sketcher.Constraint("DistanceY", 20, 2, -1, 1, 61.0))
sketch3.addConstraint(Sketcher.Constraint("DistanceY", 22, 2, -1, 1, 61.0))
sketch3.addConstraint(Sketcher.Constraint("DistanceY", 34, 2, -1, 1, 61.0))
sketch3.addConstraint(Sketcher.Constraint("DistanceY", 45, 2, -1, 1, 61.0))
sketch3.addConstraint(Sketcher.Constraint("DistanceY", 48, 2, -1, 1, 61.0))
sketch3.addConstraint(Sketcher.Constraint("DistanceY", 50, 2, -1, 1, 61.0))
sketch3.addConstraint(Sketcher.Constraint("DistanceY", 55, 2, -1, 1, 61.0))
sketch3.addConstraint(Sketcher.Constraint("DistanceY", 16, 2, -1, 1, 57.5))
sketch3.addConstraint(Sketcher.Constraint("DistanceX", 15, 1, 15, 2, 0.762821))
sketch3.addConstraint(Sketcher.Constraint("DistanceX", 19, 1, 19, 2, 0.762821))
sketch3.addConstraint(Sketcher.Constraint("DistanceX", 22, 2, 22, 1, 1.974359))
sketch3.addConstraint(Sketcher.Constraint("DistanceX", 24, 1, 24, 2, 1.974359))
sketch3.addConstraint(Sketcher.Constraint("DistanceX", 12, 2, 10, 2, 2.3123))
sketch3.addConstraint(Sketcher.Constraint("DistanceX", 48, 2, 46, 2, 2.3123))
sketch3.addConstraint(Sketcher.Constraint("DistanceX", 1, 1, 1, 2, 0.314103))
sketch3.addConstraint(Sketcher.Constraint("DistanceX", 5, 1, 5, 2, 0.314103))
sketch3.addConstraint(Sketcher.Constraint("DistanceX", 8, 1, 8, 2, 0.071514))
sketch3.addConstraint(Sketcher.Constraint("DistanceX", 10, 2, 10, 1, 0.314103))
sketch3.addConstraint(Sketcher.Constraint("DistanceX", 13, 2, 13, 1, 0.065905))
sketch3.addConstraint(Sketcher.Constraint("DistanceX", 17, 1, 17, 2, 0.314103))
sketch3.addConstraint(Sketcher.Constraint("DistanceX", 26, 2, 26, 1, 1.660256))
sketch3.addConstraint(Sketcher.Constraint("DistanceX", 28, 1, 28, 2, 1.660256))
sketch3.addConstraint(Sketcher.Constraint("DistanceX", 30, 2, 30, 1, 1.660256))
sketch3.addConstraint(Sketcher.Constraint("DistanceX", 34, 2, 34, 1, 0.314103))
sketch3.addConstraint(Sketcher.Constraint("DistanceX", 36, 1, 36, 2, 1.660256))
sketch3.addConstraint(Sketcher.Constraint("DistanceX", 41, 1, 41, 2, 0.314103))
sketch3.addConstraint(Sketcher.Constraint("DistanceX", 44, 1, 44, 2, 0.071514))
sketch3.addConstraint(Sketcher.Constraint("DistanceX", 46, 2, 46, 1, 0.314103))
sketch3.addConstraint(Sketcher.Constraint("DistanceX", 49, 2, 49, 1, 0.065905))
sketch3.addConstraint(Sketcher.Constraint("DistanceY", 6, 2, 6, 1, 2.748397))
sketch3.addConstraint(Sketcher.Constraint("DistanceY", 11, 1, 11, 2, 2.754708))
sketch3.addConstraint(Sketcher.Constraint("DistanceY", 14, 1, 14, 2, 0.358974))
sketch3.addConstraint(Sketcher.Constraint("DistanceY", 18, 2, 18, 1, 3.141026))
sketch3.addConstraint(Sketcher.Constraint("DistanceY", 25, 2, 25, 1, 0.358974))
sketch3.addConstraint(Sketcher.Constraint("DistanceY", 27, 2, 27, 1, 1.346154))
sketch3.addConstraint(Sketcher.Constraint("DistanceY", 29, 2, 29, 1, 0.358974))
sketch3.addConstraint(Sketcher.Constraint("DistanceY", 31, 2, 31, 1, 1.076923))
sketch3.addConstraint(Sketcher.Constraint("DistanceY", 37, 2, 37, 1, 0.358974))
sketch3.addConstraint(Sketcher.Constraint("DistanceY", 42, 2, 42, 1, 2.748397))
sketch3.addConstraint(Sketcher.Constraint("DistanceY", 47, 1, 47, 2, 2.754708))
sketch3.addConstraint(Sketcher.Constraint("DistanceX", -1, 1, 1, 2, 0.762821))
sketch3.addConstraint(Sketcher.Constraint("DistanceX", -1, 1, 5, 2, 1.974359))
sketch3.addConstraint(Sketcher.Constraint("DistanceX", -1, 1, 22, 2, 7.224359))
sketch3.addConstraint(Sketcher.Constraint("DistanceX", -1, 1, 36, 2, 11.487179))
sketch3.addConstraint(Sketcher.Constraint("DistanceX", -1, 1, 41, 2, 13.730769))
sketch3.addConstraint(Sketcher.Constraint("DistanceX", 9, 2, 14, 2, 0.49359))
pocket2 = body.newObject("PartDesign::Pocket", "Pocket001")
pocket2.Profile = sketch3
pocket2.Type = "ThroughAll"
pocket2.Reversed = True

doc.recompute()
